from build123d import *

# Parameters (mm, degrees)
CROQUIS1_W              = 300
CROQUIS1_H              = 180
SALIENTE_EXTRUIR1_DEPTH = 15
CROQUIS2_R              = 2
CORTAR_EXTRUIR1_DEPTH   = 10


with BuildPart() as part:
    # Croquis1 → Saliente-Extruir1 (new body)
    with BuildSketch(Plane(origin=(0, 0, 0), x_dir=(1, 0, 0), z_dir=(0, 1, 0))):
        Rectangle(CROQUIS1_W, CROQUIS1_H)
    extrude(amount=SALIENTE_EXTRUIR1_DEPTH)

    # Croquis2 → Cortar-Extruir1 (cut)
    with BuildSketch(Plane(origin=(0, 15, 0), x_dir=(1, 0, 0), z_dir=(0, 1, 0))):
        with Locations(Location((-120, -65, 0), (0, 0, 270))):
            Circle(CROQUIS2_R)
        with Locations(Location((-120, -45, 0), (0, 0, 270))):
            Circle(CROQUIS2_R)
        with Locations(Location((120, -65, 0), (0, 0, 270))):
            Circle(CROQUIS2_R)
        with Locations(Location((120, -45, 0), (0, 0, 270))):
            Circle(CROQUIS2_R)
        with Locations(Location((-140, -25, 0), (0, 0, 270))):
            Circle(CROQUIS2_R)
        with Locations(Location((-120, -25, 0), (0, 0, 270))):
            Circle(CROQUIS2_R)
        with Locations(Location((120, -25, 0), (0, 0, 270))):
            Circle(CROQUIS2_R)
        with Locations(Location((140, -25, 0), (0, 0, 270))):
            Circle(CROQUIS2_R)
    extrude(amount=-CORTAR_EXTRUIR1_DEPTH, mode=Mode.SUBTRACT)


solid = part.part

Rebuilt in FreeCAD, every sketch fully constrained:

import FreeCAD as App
import Part
import Sketcher
from FreeCAD import Vector
Q = App.Units.Quantity


def add_polygon(sketch, points):
    """Adds a closed chain of lines whose ends are joined by coincident constraints."""
    first, n = sketch.GeometryCount, len(points)
    for a, b in zip(points, points[1:] + points[:1]):
        sketch.addGeometry(Part.LineSegment(App.Vector(*a, 0), App.Vector(*b, 0)), False)
    for i in range(n):
        sketch.addConstraint(Sketcher.Constraint("Coincident", first + i, 2, first + (i + 1) % n, 1))

doc = App.newDocument("Part")
body = doc.addObject("PartDesign::Body", "Body")

sketch1 = body.newObject("Sketcher::SketchObject", "Sketch")
sketch1.AttachmentSupport = (doc.getObject("XZ_Plane"), [""])
sketch1.MapMode = "FlatFace"
add_polygon(sketch1, [(-150, -90), (-150, 90), (150, 90), (150, -90)])
sketch1.addConstraint([
    Sketcher.Constraint("Vertical", 0),
    Sketcher.Constraint("Horizontal", 1),
    Sketcher.Constraint("Vertical", 2),
    Sketcher.Constraint("Horizontal", 3),
    Sketcher.Constraint("Symmetric", 0, 2, 2, 2, -1, 1),
    Sketcher.Constraint("DistanceX", 1, 1, 1, 2, Q("300 mm")),
    Sketcher.Constraint("DistanceY", 0, 1, 0, 2, Q("180 mm")),
])
pad1 = body.newObject("PartDesign::Pad", "Pad")
pad1.Profile = sketch1
pad1.Length = 15
pad1.Reversed = True

sketch2 = body.newObject("Sketcher::SketchObject", "Sketch001")
sketch2.AttachmentSupport = (doc.getObject("XZ_Plane"), [""])
sketch2.MapMode = "FlatFace"
sketch2.AttachmentOffset = App.Placement(Vector(0, 0, -15), App.Rotation())
sketch2.addGeometry([
    Part.Circle(Vector(-120, 65, 0), Vector(0, 0, 1), 2),
    Part.Circle(Vector(-120, 45, 0), Vector(0, 0, 1), 2),
    Part.Circle(Vector(120, 65, 0), Vector(0, 0, 1), 2),
    Part.Circle(Vector(120, 45, 0), Vector(0, 0, 1), 2),
    Part.Circle(Vector(-140, 25, 0), Vector(0, 0, 1), 2),
    Part.Circle(Vector(-120, 25, 0), Vector(0, 0, 1), 2),
    Part.Circle(Vector(120, 25, 0), Vector(0, 0, 1), 2),
    Part.Circle(Vector(140, 25, 0), Vector(0, 0, 1), 2),
], False)
sketch2.addConstraint([
    Sketcher.Constraint("Equal", 0, 1),
    Sketcher.Constraint("Equal", 1, 2),
    Sketcher.Constraint("Equal", 2, 3),
    Sketcher.Constraint("Equal", 3, 4),
    Sketcher.Constraint("Equal", 4, 5),
    Sketcher.Constraint("Equal", 5, 6),
    Sketcher.Constraint("Equal", 6, 7),
    Sketcher.Constraint("Symmetric", 0, 3, 2, 3, -2),
    Sketcher.Constraint("Symmetric", 1, 3, 3, 3, -2),
    Sketcher.Constraint("Symmetric", 5, 3, 6, 3, -2),
    Sketcher.Constraint("Symmetric", 4, 3, 7, 3, -2),
    Sketcher.Constraint("Horizontal", 4, 3, 5, 3),
    Sketcher.Constraint("Vertical", 0, 3, 1, 3),
    Sketcher.Constraint("Vertical", 1, 3, 5, 3),
    Sketcher.Constraint("Diameter", 0, Q("4 mm")),
    Sketcher.Constraint("DistanceX", 0, 3, -1, 1, Q("120 mm")),
    Sketcher.Constraint("DistanceY", -1, 1, 0, 3, Q("65 mm")),
    Sketcher.Constraint("DistanceY", -1, 1, 1, 3, Q("45 mm")),
    Sketcher.Constraint("DistanceX", 4, 3, -1, 1, Q("140 mm")),
    Sketcher.Constraint("DistanceY", -1, 1, 4, 3, Q("25 mm")),
])
pocket1 = body.newObject("PartDesign::Pocket", "Pocket")
pocket1.Profile = sketch2
pocket1.Length = 10
pocket1.Reversed = True

doc.recompute()
